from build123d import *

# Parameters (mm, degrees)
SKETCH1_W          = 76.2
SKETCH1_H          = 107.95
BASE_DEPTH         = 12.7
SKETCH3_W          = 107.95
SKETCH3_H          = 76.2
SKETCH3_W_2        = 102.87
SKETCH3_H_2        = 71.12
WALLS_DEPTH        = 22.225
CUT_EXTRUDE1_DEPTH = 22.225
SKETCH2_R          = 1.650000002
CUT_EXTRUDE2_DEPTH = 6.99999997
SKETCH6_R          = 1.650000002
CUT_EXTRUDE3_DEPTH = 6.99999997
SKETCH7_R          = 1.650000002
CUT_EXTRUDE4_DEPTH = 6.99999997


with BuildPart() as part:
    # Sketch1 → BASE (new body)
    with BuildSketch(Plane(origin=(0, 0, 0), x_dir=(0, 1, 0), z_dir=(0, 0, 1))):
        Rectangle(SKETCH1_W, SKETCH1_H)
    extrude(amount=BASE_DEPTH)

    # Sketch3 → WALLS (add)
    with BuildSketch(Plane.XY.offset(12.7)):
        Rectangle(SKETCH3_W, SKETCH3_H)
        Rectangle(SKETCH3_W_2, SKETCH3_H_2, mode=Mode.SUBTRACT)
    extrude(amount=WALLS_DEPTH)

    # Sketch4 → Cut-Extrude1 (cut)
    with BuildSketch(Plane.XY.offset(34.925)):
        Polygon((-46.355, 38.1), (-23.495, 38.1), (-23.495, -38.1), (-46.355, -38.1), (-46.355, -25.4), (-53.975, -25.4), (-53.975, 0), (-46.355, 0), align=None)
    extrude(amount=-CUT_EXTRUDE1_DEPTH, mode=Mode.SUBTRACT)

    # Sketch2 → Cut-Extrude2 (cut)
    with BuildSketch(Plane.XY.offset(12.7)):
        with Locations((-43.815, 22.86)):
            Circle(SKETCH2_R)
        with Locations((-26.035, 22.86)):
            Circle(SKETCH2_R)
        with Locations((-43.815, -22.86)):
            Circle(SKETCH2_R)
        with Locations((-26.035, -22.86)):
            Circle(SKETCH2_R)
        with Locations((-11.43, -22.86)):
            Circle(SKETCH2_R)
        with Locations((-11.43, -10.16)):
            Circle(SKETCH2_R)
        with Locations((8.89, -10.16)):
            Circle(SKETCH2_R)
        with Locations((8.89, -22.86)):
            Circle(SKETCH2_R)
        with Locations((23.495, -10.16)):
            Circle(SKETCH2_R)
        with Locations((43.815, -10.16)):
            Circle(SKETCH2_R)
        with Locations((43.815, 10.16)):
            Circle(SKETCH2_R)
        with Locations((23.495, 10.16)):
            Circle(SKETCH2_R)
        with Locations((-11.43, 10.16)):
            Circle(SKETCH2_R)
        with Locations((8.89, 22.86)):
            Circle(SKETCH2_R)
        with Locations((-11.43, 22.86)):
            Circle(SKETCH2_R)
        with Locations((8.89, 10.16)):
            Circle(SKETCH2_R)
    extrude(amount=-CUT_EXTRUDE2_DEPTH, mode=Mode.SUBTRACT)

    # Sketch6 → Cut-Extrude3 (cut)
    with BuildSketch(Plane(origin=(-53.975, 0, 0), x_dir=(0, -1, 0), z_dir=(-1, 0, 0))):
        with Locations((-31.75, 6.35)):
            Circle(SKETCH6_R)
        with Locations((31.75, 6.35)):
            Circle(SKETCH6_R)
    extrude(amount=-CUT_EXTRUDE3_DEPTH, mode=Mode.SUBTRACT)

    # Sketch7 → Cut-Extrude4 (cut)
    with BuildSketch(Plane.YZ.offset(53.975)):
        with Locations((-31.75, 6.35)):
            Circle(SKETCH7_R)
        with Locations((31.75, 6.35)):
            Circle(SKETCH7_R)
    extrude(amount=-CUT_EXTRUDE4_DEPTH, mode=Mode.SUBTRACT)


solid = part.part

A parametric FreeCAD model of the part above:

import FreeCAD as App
import Part
import Sketcher
from FreeCAD import Vector
Q = App.Units.Quantity

doc = App.newDocument("Part")
params = doc.addObject("Spreadsheet::Sheet", "Params")
for row, (alias, value) in enumerate([
    ("sketch1_height", "3 in"),
    ("sketch1_width", "4.25 in"),
    ("pad1_length", "0.5 in"),
    ("sketch2_height", "3 in"),
    ("sketch2_height2", "2.8 in"),
    ("sketch2_width", "4.25 in"),
    ("sketch2_width2", "4.05 in"),
    ("pad2_length", "0.875 in"),
    ("sketch3_height", "1 in"),
    ("sketch3_height2", "3 in"),
    ("sketch3_width", "0.9 in"),
    ("sketch3_width2", "0.3 in"),
    ("pocket1_length", "0.875 in"),
    ("pocket2_length", "7 mm"),
    ("pocket3_length", "7 mm"),
    ("pocket4_length", "7 mm"),
], start=1):
    params.set(f"A{row}", alias)
    params.set(f"B{row}", "=" + value)
    params.setAlias(f"B{row}", alias)

body = doc.addObject("PartDesign::Body", "Body")

# Sketch on XY plane
sketch1 = body.newObject("Sketcher::SketchObject", "Sketch")
sketch1.AttachmentSupport = (doc.getObject("XY_Plane"), [""])
sketch1.MapMode = "FlatFace"
sketch1.addGeometry([
    Part.LineSegment(Vector(-53.975, -38.1, 0), Vector(53.975, -38.1, 0)),
    Part.LineSegment(Vector(53.975, -38.1, 0), Vector(53.975, 38.1, 0)),
    Part.LineSegment(Vector(53.975, 38.1, 0), Vector(-53.975, 38.1, 0)),
    Part.LineSegment(Vector(-53.975, 38.1, 0), Vector(-53.975, -38.1, 0)),
], False)
sketch1.addConstraint([
    Sketcher.Constraint("Coincident", 0, 2, 1, 1),
    Sketcher.Constraint("Coincident", 1, 2, 2, 1),
    Sketcher.Constraint("Coincident", 2, 2, 3, 1),
    Sketcher.Constraint("Coincident", 3, 2, 0, 1),
    Sketcher.Constraint("Horizontal", 0),
    Sketcher.Constraint("Vertical", 1),
    Sketcher.Constraint("Horizontal", 2),
    Sketcher.Constraint("Vertical", 3),
    Sketcher.Constraint("Symmetric", 0, 2, 2, 2, -1, 1),
    Sketcher.Constraint("DistanceY", 1, 1, 1, 2, Q("3 in")),
    Sketcher.Constraint("DistanceX", 0, 1, 0, 2, Q("4.25 in")),
])
sketch1.setExpression("Constraints[9]", "Params.sketch1_height")
sketch1.setExpression("Constraints[10]", "Params.sketch1_width")
pad1 = body.newObject("PartDesign::Pad", "Pad")
pad1.Profile = sketch1
pad1.setExpression("Length", "Params.pad1_length")

# Sketch on XY plane
sketch2 = body.newObject("Sketcher::SketchObject", "Sketch001")
sketch2.AttachmentSupport = (doc.getObject("XY_Plane"), [""])
sketch2.MapMode = "FlatFace"
sketch2.AttachmentOffset = App.Placement(Vector(0, 0, 0.5 * 25.4), App.Rotation())
sketch2.addGeometry([
    Part.LineSegment(Vector(-53.975, 38.1, 0), Vector(-53.975, -38.1, 0)),  # 0
    Part.LineSegment(Vector(-53.975, -38.1, 0), Vector(53.975, -38.1, 0)),  # 1
    Part.LineSegment(Vector(53.975, -38.1, 0), Vector(53.975, 38.1, 0)),  # 2
    Part.LineSegment(Vector(53.975, 38.1, 0), Vector(-53.975, 38.1, 0)),  # 3
    Part.LineSegment(Vector(51.435, -35.56, 0), Vector(-51.435, -35.56, 0)),  # 4
    Part.LineSegment(Vector(-51.435, -35.56, 0), Vector(-51.435, 35.56, 0)),  # 5
    Part.LineSegment(Vector(-51.435, 35.56, 0), Vector(51.435, 35.56, 0)),  # 6
    Part.LineSegment(Vector(51.435, 35.56, 0), Vector(51.435, -35.56, 0)),  # 7
], False)
sketch2.addConstraint([
    Sketcher.Constraint("Coincident", 0, 2, 1, 1),
    Sketcher.Constraint("Coincident", 1, 2, 2, 1),
    Sketcher.Constraint("Coincident", 2, 2, 3, 1),
    Sketcher.Constraint("Coincident", 3, 2, 0, 1),
    Sketcher.Constraint("Coincident", 4, 2, 5, 1),
    Sketcher.Constraint("Coincident", 5, 2, 6, 1),
    Sketcher.Constraint("Coincident", 6, 2, 7, 1),
    Sketcher.Constraint("Coincident", 7, 2, 4, 1),
    Sketcher.Constraint("Vertical", 0),
    Sketcher.Constraint("Horizontal", 1),
    Sketcher.Constraint("Vertical", 2),
    Sketcher.Constraint("Horizontal", 3),
    Sketcher.Constraint("Horizontal", 4),
    Sketcher.Constraint("Vertical", 5),
    Sketcher.Constraint("Horizontal", 6),
    Sketcher.Constraint("Vertical", 7),
    Sketcher.Constraint("Symmetric", 0, 2, 2, 2, -1, 1),
    Sketcher.Constraint("Symmetric", 4, 2, 6, 2, -1, 1),
    Sketcher.Constraint("DistanceY", 0, 2, 0, 1, Q("3 in")),
    Sketcher.Constraint("DistanceY", 5, 1, 5, 2, Q("2.8 in")),
    Sketcher.Constraint("DistanceX", 1, 1, 1, 2, Q("4.25 in")),
    Sketcher.Constraint("DistanceX", 4, 2, 4, 1, Q("4.05 in")),
])
sketch2.setExpression("Constraints[18]", "Params.sketch2_height")
sketch2.setExpression("Constraints[19]", "Params.sketch2_height2")
sketch2.setExpression("Constraints[20]", "Params.sketch2_width")
sketch2.setExpression("Constraints[21]", "Params.sketch2_width2")
pad2 = body.newObject("PartDesign::Pad", "Pad001")
pad2.Profile = sketch2
pad2.setExpression("Length", "Params.pad2_length")

# Sketch on XY plane
sketch3 = body.newObject("Sketcher::SketchObject", "Sketch002")
sketch3.AttachmentSupport = (doc.getObject("XY_Plane"), [""])
sketch3.MapMode = "FlatFace"
sketch3.AttachmentOffset = App.Placement(Vector(0, 0, 1.375 * 25.4), App.Rotation())
sketch3.addGeometry([
    Part.LineSegment(Vector(-23.495, 38.1, 0), Vector(-46.355, 38.1, 0)),  # 0
    Part.LineSegment(Vector(-46.355, 38.1, 0), Vector(-46.355, 0, 0)),  # 1
    Part.LineSegment(Vector(-46.355, 0, 0), Vector(-53.975, 0, 0)),  # 2
    Part.LineSegment(Vector(-53.975, 0, 0), Vector(-53.975, -25.4, 0)),  # 3
    Part.LineSegment(Vector(-53.975, -25.4, 0), Vector(-46.355, -25.4, 0)),  # 4
    Part.LineSegment(Vector(-46.355, -25.4, 0), Vector(-46.355, -38.1, 0)),  # 5
    Part.LineSegment(Vector(-46.355, -38.1, 0), Vector(-23.495, -38.1, 0)),  # 6
    Part.LineSegment(Vector(-23.495, -38.1, 0), Vector(-23.495, 38.1, 0)),  # 7
], False)
sketch3.addConstraint([
    Sketcher.Constraint("Coincident", 0, 2, 1, 1),
    Sketcher.Constraint("Coincident", 1, 2, 2, 1),
    Sketcher.Constraint("Coincident", 2, 2, 3, 1),
    Sketcher.Constraint("Coincident", 3, 2, 4, 1),
    Sketcher.Constraint("Coincident", 4, 2, 5, 1),
    Sketcher.Constraint("Coincident", 5, 2, 6, 1),
    Sketcher.Constraint("Coincident", 6, 2, 7, 1),
    Sketcher.Constraint("Coincident", 7, 2, 0, 1),
    Sketcher.Constraint("Horizontal", 0),
    Sketcher.Constraint("Vertical", 1),
    Sketcher.Constraint("Horizontal", 2),
    Sketcher.Constraint("Vertical", 3),
    Sketcher.Constraint("Horizontal", 4),
    Sketcher.Constraint("Vertical", 5),
    Sketcher.Constraint("Horizontal", 6),
    Sketcher.Constraint("Vertical", 7),
    Sketcher.Constraint("Symmetric", 0, 2, 5, 2, -1),
    Sketcher.Constraint("PointOnObject", 1, 2, -1),
    Sketcher.Constraint("DistanceY", 3, 2, 3, 1, Q("1 in")),
    Sketcher.Constraint("DistanceY", 7, 1, 7, 2, Q("3 in")),
    Sketcher.Constraint("DistanceX", 0, 2, 0, 1, Q("0.9 in")),
    Sketcher.Constraint("DistanceX", 2, 2, 2, 1, Q("0.3 in")),
    Sketcher.Constraint("DistanceX", 0, 2, -1, 1, Q("1.825 in")),
])
sketch3.setExpression("Constraints[18]", "Params.sketch3_height")
sketch3.setExpression("Constraints[19]", "Params.sketch3_height2")
sketch3.setExpression("Constraints[20]", "Params.sketch3_width")
sketch3.setExpression("Constraints[21]", "Params.sketch3_width2")
pocket1 = body.newObject("PartDesign::Pocket", "Pocket")
pocket1.Profile = sketch3
pocket1.setExpression("Length", "Params.pocket1_length")

# Sketch on XY plane
sketch4 = body.newObject("Sketcher::SketchObject", "Sketch003")
sketch4.AttachmentSupport = (doc.getObject("XY_Plane"), [""])
sketch4.MapMode = "FlatFace"
sketch4.AttachmentOffset = App.Placement(Vector(0, 0, 0.5 * 25.4), App.Rotation())
sketch4.addGeometry([
    Part.Circle(Vector(-43.815, 22.86, 0), Vector(0, 0, 1), 1.65),  # 0
    Part.Circle(Vector(-26.035, 22.86, 0), Vector(0, 0, 1), 1.65),  # 1
    Part.Circle(Vector(-43.815, -22.86, 0), Vector(0, 0, 1), 1.65),  # 2
    Part.Circle(Vector(-26.035, -22.86, 0), Vector(0, 0, 1), 1.65),  # 3
    Part.Circle(Vector(-11.43, -22.86, 0), Vector(0, 0, 1), 1.65),  # 4
    Part.Circle(Vector(-11.43, -10.16, 0), Vector(0, 0, 1), 1.65),  # 5
    Part.Circle(Vector(8.89, -10.16, 0), Vector(0, 0, 1), 1.65),  # 6
    Part.Circle(Vector(8.89, -22.86, 0), Vector(0, 0, 1), 1.65),  # 7
    Part.Circle(Vector(23.495, -10.16, 0), Vector(0, 0, 1), 1.65),  # 8
    Part.Circle(Vector(43.815, -10.16, 0), Vector(0, 0, 1), 1.65),  # 9
    Part.Circle(Vector(43.815, 10.16, 0), Vector(0, 0, 1), 1.65),  # 10
    Part.Circle(Vector(23.495, 10.16, 0), Vector(0, 0, 1), 1.65),  # 11
    Part.Circle(Vector(-11.43, 10.16, 0), Vector(0, 0, 1), 1.65),  # 12
    Part.Circle(Vector(8.89, 22.86, 0), Vector(0, 0, 1), 1.65),  # 13
    Part.Circle(Vector(-11.43, 22.86, 0), Vector(0, 0, 1), 1.65),  # 14
    Part.Circle(Vector(8.89, 10.16, 0), Vector(0, 0, 1), 1.65),  # 15
], False)
sketch4.addConstraint([
    Sketcher.Constraint("Equal", 0, 1),
    Sketcher.Constraint("Equal", 1, 2),
    Sketcher.Constraint("Equal", 2, 3),
    Sketcher.Constraint("Equal", 3, 4),
    Sketcher.Constraint("Equal", 4, 5),
    Sketcher.Constraint("Equal", 5, 6),
    Sketcher.Constraint("Equal", 6, 7),
    Sketcher.Constraint("Equal", 7, 8),
    Sketcher.Constraint("Equal", 8, 9),
    Sketcher.Constraint("Equal", 9, 10),
    Sketcher.Constraint("Equal", 10, 11),
    Sketcher.Constraint("Equal", 11, 12),
    Sketcher.Constraint("Equal", 12, 13),
    Sketcher.Constraint("Equal", 13, 14),
    Sketcher.Constraint("Equal", 14, 15),
    Sketcher.Constraint("Symmetric", 0, 3, 2, 3, -1),
    Sketcher.Constraint("Symmetric", 1, 3, 3, 3, -1),
    Sketcher.Constraint("Symmetric", 9, 3, 10, 3, -1),
    Sketcher.Constraint("Symmetric", 8, 3, 11, 3, -1),
    Sketcher.Constraint("Symmetric", 5, 3, 12, 3, -1),
    Sketcher.Constraint("Symmetric", 7, 3, 13, 3, -1),
    Sketcher.Constraint("Symmetric", 4, 3, 14, 3, -1),
    Sketcher.Constraint("Symmetric", 6, 3, 15, 3, -1),
    Sketcher.Constraint("Horizontal", 0, 3, 1, 3),
    Sketcher.Constraint("Horizontal", 3, 3, 4, 3),
    Sketcher.Constraint("Horizontal", 5, 3, 6, 3),
    Sketcher.Constraint("Horizontal", 4, 3, 7, 3),
    Sketcher.Constraint("Horizontal", 6, 3, 8, 3),
    Sketcher.Constraint("Horizontal", 8, 3, 9, 3),
    Sketcher.Constraint("Vertical", 4, 3, 5, 3),
    Sketcher.Constraint("Vertical", 6, 3, 7, 3),
    Sketcher.Constraint("DistanceY", -1, 1, 0, 3, Q("0.9 in")),
    Sketcher.Constraint("DistanceY", 5, 3, -1, 1, Q("0.4 in")),
    Sketcher.Constraint("DistanceX", 0, 3, 1, 3, Q("0.7 in")),
    Sketcher.Constraint("DistanceX", 5, 3, 6, 3, Q("0.8 in")),
    Sketcher.Constraint("DistanceX", 8, 3, 9, 3, Q("0.8 in")),
    Sketcher.Constraint("Diameter", 0, Q("3.3 mm")),
    Sketcher.Constraint("DistanceX", 4, 3, -1, 1, Q("0.45 in")),
    Sketcher.Constraint("DistanceX", 3, 3, 8, 3, Q("1.95 in")),
    Sketcher.Constraint("DistanceX", 0, 3, -1, 1, Q("1.725 in")),
])
pocket2 = body.newObject("PartDesign::Pocket", "Pocket001")
pocket2.Profile = sketch4
pocket2.setExpression("Length", "Params.pocket2_length")

# Sketch on YZ plane
sketch5 = body.newObject("Sketcher::SketchObject", "Sketch004")
sketch5.AttachmentSupport = (doc.getObject("YZ_Plane"), [""])
sketch5.MapMode = "FlatFace"
sketch5.AttachmentOffset = App.Placement(Vector(0, 0, -2.125 * 25.4), App.Rotation())
sketch5.addGeometry([
    Part.Circle(Vector(31.75, 6.35, 0), Vector(0, 0, 1), 1.65),
    Part.Circle(Vector(-31.75, 6.35, 0), Vector(0, 0, 1), 1.65),
], False)
sketch5.addConstraint([
    Sketcher.Constraint("Equal", 0, 1),
    Sketcher.Constraint("Symmetric", 0, 3, 1, 3, -2),
    Sketcher.Constraint("DistanceX", 1, 3, 0, 3, Q("2.5 in")),
    Sketcher.Constraint("Diameter", 0, Q("3.3 mm")),
    Sketcher.Constraint("DistanceY", -1, 1, 0, 3, Q("0.25 in")),
])
pocket3 = body.newObject("PartDesign::Pocket", "Pocket002")
pocket3.Profile = sketch5
pocket3.setExpression("Length", "Params.pocket3_length")
pocket3.Reversed = True

# Sketch on YZ plane
sketch6 = body.newObject("Sketcher::SketchObject", "Sketch005")
sketch6.AttachmentSupport = (doc.getObject("YZ_Plane"), [""])
sketch6.MapMode = "FlatFace"
sketch6.AttachmentOffset = App.Placement(Vector(0, 0, 2.125 * 25.4), App.Rotation())
sketch6.addGeometry([
    Part.Circle(Vector(-31.75, 6.35, 0), Vector(0, 0, 1), 1.65),
    Part.Circle(Vector(31.75, 6.35, 0), Vector(0, 0, 1), 1.65),
], False)
sketch6.addConstraint([
    Sketcher.Constraint("Equal", 0, 1),
    Sketcher.Constraint("Symmetric", 0, 3, 1, 3, -2),
    Sketcher.Constraint("DistanceX", 0, 3, 1, 3, Q("2.5 in")),
    Sketcher.Constraint("Diameter", 0, Q("3.3 mm")),
    Sketcher.Constraint("DistanceY", -1, 1, 0, 3, Q("0.25 in")),
])
pocket4 = body.newObject("PartDesign::Pocket", "Pocket003")
pocket4.Profile = sketch6
pocket4.setExpression("Length", "Params.pocket4_length")

doc.recompute()
